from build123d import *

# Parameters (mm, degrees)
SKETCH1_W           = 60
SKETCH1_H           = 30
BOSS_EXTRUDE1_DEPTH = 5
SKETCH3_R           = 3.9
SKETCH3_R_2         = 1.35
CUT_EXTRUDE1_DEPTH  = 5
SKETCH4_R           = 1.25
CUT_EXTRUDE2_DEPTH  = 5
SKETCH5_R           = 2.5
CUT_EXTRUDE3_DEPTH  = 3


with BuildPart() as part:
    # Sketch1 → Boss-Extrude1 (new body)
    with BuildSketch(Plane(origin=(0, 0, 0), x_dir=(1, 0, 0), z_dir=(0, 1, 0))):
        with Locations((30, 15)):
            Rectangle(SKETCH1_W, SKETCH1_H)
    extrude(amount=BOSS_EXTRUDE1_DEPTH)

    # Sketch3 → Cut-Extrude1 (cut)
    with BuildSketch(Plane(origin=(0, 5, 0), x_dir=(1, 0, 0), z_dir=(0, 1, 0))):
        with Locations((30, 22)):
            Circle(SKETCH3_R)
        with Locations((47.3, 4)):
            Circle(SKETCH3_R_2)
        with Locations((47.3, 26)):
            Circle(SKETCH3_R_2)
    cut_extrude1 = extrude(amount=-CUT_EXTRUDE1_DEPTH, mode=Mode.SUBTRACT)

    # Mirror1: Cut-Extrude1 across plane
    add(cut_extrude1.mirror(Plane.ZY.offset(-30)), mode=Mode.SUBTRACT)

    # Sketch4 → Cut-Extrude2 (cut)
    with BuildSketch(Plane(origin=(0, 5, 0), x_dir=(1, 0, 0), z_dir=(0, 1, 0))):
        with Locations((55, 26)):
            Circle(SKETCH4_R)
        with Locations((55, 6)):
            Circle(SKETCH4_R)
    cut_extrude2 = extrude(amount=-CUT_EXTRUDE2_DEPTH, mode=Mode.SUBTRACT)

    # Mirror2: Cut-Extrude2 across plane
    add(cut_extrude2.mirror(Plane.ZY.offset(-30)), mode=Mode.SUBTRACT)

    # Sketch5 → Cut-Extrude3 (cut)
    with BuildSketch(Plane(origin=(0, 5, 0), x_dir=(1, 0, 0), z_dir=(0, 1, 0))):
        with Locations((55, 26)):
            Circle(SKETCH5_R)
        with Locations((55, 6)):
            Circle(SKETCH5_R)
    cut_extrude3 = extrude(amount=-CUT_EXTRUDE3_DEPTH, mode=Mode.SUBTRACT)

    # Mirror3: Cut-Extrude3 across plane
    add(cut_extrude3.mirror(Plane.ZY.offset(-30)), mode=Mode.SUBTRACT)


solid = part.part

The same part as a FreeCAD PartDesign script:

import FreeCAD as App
import Part
import Sketcher
Q = App.Units.Quantity


def add_polygon(sketch, points):
    """Adds a closed chain of lines whose ends are joined by coincident constraints."""
    first, n = sketch.GeometryCount, len(points)
    for a, b in zip(points, points[1:] + points[:1]):
        sketch.addGeometry(Part.LineSegment(App.Vector(*a, 0), App.Vector(*b, 0)), False)
    for i in range(n):
        sketch.addConstraint(Sketcher.Constraint("Coincident", first + i, 2, first + (i + 1) % n, 1))

doc = App.newDocument("Part")
body = doc.addObject("PartDesign::Body", "Body")

sketch1 = body.newObject("Sketcher::SketchObject", "Sketch")
sketch1.AttachmentSupport = (doc.getObject("XZ_Plane"), [""])
sketch1.MapMode = "FlatFace"
add_polygon(sketch1, [(0, -30), (0, 0), (60, 0), (60, -30)])
sketch1.addConstraint([
    Sketcher.Constraint("Vertical", 0),
    Sketcher.Constraint("Horizontal", 1),
    Sketcher.Constraint("Vertical", 2),
    Sketcher.Constraint("Horizontal", 3),
    Sketcher.Constraint("Coincident", 0, 2, -1, 1),
    Sketcher.Constraint("DistanceX", 1, 1, 1, 2, Q("60 mm")),
    Sketcher.Constraint("DistanceY", 0, 1, 0, 2, Q("30 mm")),
])
pad1 = body.newObject("PartDesign::Pad", "Pad")
pad1.Profile = sketch1
pad1.Length = 5
pad1.Reversed = True

sketch2 = body.newObject("Sketcher::SketchObject", "Sketch001")
sketch2.AttachmentSupport = (doc.getObject("XZ_Plane"), [""])
sketch2.MapMode = "FlatFace"
sketch2.AttachmentOffset = App.Placement(App.Vector(0, 0, -5), App.Rotation())
sketch2.addGeometry([
    Part.Circle(App.Vector(30, -22, 0), App.Vector(0, 0, 1), 3.9),
    Part.Circle(App.Vector(47.3, -4, 0), App.Vector(0, 0, 1), 1.35),
    Part.Circle(App.Vector(47.3, -26, 0), App.Vector(0, 0, 1), 1.35),
], False)
sketch2.addConstraint([
    Sketcher.Constraint("Equal", 1, 2),
    Sketcher.Constraint("Vertical", 1, 3, 2, 3),
    Sketcher.Constraint("Diameter", 0, Q("7.8 mm")),
    Sketcher.Constraint("Diameter", 1, Q("2.7 mm")),
    Sketcher.Constraint("DistanceX", -1, 1, 0, 3, Q("30 mm")),
    Sketcher.Constraint("DistanceY", 0, 3, -1, 1, Q("22 mm")),
    Sketcher.Constraint("DistanceY", 1, 3, -1, 1, Q("4 mm")),
    Sketcher.Constraint("DistanceY", 2, 3, -1, 1, Q("26 mm")),
    Sketcher.Constraint("DistanceX", -1, 1, 1, 3, Q("47.3 mm")),
])
pocket1 = body.newObject("PartDesign::Pocket", "Pocket")
pocket1.Profile = sketch2
pocket1.Length = 5
pocket1.Reversed = True
doc.recompute()

datumplane = body.newObject("PartDesign::Plane", "DatumPlane")
datumplane.AttachmentSupport = (doc.getObject("YZ_Plane"), [""])
datumplane.MapMode = "FlatFace"
datumplane.AttachmentOffset = App.Placement(App.Vector(0, 0, 30), App.Rotation())
mirrored = body.newObject("PartDesign::Mirrored", "Mirrored")
mirrored.Originals = [pocket1]
mirrored.MirrorPlane = (datumplane, [""])
body.Tip = mirrored

sketch3 = body.newObject("Sketcher::SketchObject", "Sketch002")
sketch3.AttachmentSupport = (doc.getObject("XZ_Plane"), [""])
sketch3.MapMode = "FlatFace"
sketch3.AttachmentOffset = App.Placement(App.Vector(0, 0, -5), App.Rotation())
sketch3.addGeometry([
    Part.Circle(App.Vector(55, -26, 0), App.Vector(0, 0, 1), 1.25),
    Part.Circle(App.Vector(55, -6, 0), App.Vector(0, 0, 1), 1.25),
], False)
sketch3.addConstraint([
    Sketcher.Constraint("Equal", 0, 1),
    Sketcher.Constraint("Vertical", 0, 3, 1, 3),
    Sketcher.Constraint("Diameter", 0, Q("2.5 mm")),
    Sketcher.Constraint("DistanceX", -1, 1, 0, 3, Q("55 mm")),
    Sketcher.Constraint("DistanceY", 0, 3, -1, 1, Q("26 mm")),
    Sketcher.Constraint("DistanceY", 1, 3, -1, 1, Q("6 mm")),
])
pocket2 = body.newObject("PartDesign::Pocket", "Pocket001")
pocket2.Profile = sketch3
pocket2.Length = 5
pocket2.Reversed = True
doc.recompute()

datumplane2 = body.newObject("PartDesign::Plane", "DatumPlane001")
datumplane2.AttachmentSupport = (doc.getObject("YZ_Plane"), [""])
datumplane2.MapMode = "FlatFace"
datumplane2.AttachmentOffset = App.Placement(App.Vector(0, 0, 30), App.Rotation())
mirrored2 = body.newObject("PartDesign::Mirrored", "Mirrored001")
mirrored2.Originals = [pocket2]
mirrored2.MirrorPlane = (datumplane2, [""])
body.Tip = mirrored2

sketch4 = body.newObject("Sketcher::SketchObject", "Sketch003")
sketch4.AttachmentSupport = (doc.getObject("XZ_Plane"), [""])
sketch4.MapMode = "FlatFace"
sketch4.AttachmentOffset = App.Placement(App.Vector(0, 0, -5), App.Rotation())
sketch4.addGeometry([
    Part.Circle(App.Vector(55, -26, 0), App.Vector(0, 0, 1), 2.5),
    Part.Circle(App.Vector(55, -6, 0), App.Vector(0, 0, 1), 2.5),
], False)
sketch4.addConstraint([
    Sketcher.Constraint("Equal", 0, 1),
    Sketcher.Constraint("Vertical", 0, 3, 1, 3),
    Sketcher.Constraint("Diameter", 0, Q("5 mm")),
    Sketcher.Constraint("DistanceX", -1, 1, 0, 3, Q("55 mm")),
    Sketcher.Constraint("DistanceY", 0, 3, -1, 1, Q("26 mm")),
    Sketcher.Constraint("DistanceY", 1, 3, -1, 1, Q("6 mm")),
])
pocket3 = body.newObject("PartDesign::Pocket", "Pocket002")
pocket3.Profile = sketch4
pocket3.Length = 3
pocket3.Reversed = True
doc.recompute()

datumplane3 = body.newObject("PartDesign::Plane", "DatumPlane002")
datumplane3.AttachmentSupport = (doc.getObject("YZ_Plane"), [""])
datumplane3.MapMode = "FlatFace"
datumplane3.AttachmentOffset = App.Placement(App.Vector(0, 0, 30), App.Rotation())
mirrored3 = body.newObject("PartDesign::Mirrored", "Mirrored002")
mirrored3.Originals = [pocket3]
mirrored3.MirrorPlane = (datumplane3, [""])
body.Tip = mirrored3

doc.recompute()
